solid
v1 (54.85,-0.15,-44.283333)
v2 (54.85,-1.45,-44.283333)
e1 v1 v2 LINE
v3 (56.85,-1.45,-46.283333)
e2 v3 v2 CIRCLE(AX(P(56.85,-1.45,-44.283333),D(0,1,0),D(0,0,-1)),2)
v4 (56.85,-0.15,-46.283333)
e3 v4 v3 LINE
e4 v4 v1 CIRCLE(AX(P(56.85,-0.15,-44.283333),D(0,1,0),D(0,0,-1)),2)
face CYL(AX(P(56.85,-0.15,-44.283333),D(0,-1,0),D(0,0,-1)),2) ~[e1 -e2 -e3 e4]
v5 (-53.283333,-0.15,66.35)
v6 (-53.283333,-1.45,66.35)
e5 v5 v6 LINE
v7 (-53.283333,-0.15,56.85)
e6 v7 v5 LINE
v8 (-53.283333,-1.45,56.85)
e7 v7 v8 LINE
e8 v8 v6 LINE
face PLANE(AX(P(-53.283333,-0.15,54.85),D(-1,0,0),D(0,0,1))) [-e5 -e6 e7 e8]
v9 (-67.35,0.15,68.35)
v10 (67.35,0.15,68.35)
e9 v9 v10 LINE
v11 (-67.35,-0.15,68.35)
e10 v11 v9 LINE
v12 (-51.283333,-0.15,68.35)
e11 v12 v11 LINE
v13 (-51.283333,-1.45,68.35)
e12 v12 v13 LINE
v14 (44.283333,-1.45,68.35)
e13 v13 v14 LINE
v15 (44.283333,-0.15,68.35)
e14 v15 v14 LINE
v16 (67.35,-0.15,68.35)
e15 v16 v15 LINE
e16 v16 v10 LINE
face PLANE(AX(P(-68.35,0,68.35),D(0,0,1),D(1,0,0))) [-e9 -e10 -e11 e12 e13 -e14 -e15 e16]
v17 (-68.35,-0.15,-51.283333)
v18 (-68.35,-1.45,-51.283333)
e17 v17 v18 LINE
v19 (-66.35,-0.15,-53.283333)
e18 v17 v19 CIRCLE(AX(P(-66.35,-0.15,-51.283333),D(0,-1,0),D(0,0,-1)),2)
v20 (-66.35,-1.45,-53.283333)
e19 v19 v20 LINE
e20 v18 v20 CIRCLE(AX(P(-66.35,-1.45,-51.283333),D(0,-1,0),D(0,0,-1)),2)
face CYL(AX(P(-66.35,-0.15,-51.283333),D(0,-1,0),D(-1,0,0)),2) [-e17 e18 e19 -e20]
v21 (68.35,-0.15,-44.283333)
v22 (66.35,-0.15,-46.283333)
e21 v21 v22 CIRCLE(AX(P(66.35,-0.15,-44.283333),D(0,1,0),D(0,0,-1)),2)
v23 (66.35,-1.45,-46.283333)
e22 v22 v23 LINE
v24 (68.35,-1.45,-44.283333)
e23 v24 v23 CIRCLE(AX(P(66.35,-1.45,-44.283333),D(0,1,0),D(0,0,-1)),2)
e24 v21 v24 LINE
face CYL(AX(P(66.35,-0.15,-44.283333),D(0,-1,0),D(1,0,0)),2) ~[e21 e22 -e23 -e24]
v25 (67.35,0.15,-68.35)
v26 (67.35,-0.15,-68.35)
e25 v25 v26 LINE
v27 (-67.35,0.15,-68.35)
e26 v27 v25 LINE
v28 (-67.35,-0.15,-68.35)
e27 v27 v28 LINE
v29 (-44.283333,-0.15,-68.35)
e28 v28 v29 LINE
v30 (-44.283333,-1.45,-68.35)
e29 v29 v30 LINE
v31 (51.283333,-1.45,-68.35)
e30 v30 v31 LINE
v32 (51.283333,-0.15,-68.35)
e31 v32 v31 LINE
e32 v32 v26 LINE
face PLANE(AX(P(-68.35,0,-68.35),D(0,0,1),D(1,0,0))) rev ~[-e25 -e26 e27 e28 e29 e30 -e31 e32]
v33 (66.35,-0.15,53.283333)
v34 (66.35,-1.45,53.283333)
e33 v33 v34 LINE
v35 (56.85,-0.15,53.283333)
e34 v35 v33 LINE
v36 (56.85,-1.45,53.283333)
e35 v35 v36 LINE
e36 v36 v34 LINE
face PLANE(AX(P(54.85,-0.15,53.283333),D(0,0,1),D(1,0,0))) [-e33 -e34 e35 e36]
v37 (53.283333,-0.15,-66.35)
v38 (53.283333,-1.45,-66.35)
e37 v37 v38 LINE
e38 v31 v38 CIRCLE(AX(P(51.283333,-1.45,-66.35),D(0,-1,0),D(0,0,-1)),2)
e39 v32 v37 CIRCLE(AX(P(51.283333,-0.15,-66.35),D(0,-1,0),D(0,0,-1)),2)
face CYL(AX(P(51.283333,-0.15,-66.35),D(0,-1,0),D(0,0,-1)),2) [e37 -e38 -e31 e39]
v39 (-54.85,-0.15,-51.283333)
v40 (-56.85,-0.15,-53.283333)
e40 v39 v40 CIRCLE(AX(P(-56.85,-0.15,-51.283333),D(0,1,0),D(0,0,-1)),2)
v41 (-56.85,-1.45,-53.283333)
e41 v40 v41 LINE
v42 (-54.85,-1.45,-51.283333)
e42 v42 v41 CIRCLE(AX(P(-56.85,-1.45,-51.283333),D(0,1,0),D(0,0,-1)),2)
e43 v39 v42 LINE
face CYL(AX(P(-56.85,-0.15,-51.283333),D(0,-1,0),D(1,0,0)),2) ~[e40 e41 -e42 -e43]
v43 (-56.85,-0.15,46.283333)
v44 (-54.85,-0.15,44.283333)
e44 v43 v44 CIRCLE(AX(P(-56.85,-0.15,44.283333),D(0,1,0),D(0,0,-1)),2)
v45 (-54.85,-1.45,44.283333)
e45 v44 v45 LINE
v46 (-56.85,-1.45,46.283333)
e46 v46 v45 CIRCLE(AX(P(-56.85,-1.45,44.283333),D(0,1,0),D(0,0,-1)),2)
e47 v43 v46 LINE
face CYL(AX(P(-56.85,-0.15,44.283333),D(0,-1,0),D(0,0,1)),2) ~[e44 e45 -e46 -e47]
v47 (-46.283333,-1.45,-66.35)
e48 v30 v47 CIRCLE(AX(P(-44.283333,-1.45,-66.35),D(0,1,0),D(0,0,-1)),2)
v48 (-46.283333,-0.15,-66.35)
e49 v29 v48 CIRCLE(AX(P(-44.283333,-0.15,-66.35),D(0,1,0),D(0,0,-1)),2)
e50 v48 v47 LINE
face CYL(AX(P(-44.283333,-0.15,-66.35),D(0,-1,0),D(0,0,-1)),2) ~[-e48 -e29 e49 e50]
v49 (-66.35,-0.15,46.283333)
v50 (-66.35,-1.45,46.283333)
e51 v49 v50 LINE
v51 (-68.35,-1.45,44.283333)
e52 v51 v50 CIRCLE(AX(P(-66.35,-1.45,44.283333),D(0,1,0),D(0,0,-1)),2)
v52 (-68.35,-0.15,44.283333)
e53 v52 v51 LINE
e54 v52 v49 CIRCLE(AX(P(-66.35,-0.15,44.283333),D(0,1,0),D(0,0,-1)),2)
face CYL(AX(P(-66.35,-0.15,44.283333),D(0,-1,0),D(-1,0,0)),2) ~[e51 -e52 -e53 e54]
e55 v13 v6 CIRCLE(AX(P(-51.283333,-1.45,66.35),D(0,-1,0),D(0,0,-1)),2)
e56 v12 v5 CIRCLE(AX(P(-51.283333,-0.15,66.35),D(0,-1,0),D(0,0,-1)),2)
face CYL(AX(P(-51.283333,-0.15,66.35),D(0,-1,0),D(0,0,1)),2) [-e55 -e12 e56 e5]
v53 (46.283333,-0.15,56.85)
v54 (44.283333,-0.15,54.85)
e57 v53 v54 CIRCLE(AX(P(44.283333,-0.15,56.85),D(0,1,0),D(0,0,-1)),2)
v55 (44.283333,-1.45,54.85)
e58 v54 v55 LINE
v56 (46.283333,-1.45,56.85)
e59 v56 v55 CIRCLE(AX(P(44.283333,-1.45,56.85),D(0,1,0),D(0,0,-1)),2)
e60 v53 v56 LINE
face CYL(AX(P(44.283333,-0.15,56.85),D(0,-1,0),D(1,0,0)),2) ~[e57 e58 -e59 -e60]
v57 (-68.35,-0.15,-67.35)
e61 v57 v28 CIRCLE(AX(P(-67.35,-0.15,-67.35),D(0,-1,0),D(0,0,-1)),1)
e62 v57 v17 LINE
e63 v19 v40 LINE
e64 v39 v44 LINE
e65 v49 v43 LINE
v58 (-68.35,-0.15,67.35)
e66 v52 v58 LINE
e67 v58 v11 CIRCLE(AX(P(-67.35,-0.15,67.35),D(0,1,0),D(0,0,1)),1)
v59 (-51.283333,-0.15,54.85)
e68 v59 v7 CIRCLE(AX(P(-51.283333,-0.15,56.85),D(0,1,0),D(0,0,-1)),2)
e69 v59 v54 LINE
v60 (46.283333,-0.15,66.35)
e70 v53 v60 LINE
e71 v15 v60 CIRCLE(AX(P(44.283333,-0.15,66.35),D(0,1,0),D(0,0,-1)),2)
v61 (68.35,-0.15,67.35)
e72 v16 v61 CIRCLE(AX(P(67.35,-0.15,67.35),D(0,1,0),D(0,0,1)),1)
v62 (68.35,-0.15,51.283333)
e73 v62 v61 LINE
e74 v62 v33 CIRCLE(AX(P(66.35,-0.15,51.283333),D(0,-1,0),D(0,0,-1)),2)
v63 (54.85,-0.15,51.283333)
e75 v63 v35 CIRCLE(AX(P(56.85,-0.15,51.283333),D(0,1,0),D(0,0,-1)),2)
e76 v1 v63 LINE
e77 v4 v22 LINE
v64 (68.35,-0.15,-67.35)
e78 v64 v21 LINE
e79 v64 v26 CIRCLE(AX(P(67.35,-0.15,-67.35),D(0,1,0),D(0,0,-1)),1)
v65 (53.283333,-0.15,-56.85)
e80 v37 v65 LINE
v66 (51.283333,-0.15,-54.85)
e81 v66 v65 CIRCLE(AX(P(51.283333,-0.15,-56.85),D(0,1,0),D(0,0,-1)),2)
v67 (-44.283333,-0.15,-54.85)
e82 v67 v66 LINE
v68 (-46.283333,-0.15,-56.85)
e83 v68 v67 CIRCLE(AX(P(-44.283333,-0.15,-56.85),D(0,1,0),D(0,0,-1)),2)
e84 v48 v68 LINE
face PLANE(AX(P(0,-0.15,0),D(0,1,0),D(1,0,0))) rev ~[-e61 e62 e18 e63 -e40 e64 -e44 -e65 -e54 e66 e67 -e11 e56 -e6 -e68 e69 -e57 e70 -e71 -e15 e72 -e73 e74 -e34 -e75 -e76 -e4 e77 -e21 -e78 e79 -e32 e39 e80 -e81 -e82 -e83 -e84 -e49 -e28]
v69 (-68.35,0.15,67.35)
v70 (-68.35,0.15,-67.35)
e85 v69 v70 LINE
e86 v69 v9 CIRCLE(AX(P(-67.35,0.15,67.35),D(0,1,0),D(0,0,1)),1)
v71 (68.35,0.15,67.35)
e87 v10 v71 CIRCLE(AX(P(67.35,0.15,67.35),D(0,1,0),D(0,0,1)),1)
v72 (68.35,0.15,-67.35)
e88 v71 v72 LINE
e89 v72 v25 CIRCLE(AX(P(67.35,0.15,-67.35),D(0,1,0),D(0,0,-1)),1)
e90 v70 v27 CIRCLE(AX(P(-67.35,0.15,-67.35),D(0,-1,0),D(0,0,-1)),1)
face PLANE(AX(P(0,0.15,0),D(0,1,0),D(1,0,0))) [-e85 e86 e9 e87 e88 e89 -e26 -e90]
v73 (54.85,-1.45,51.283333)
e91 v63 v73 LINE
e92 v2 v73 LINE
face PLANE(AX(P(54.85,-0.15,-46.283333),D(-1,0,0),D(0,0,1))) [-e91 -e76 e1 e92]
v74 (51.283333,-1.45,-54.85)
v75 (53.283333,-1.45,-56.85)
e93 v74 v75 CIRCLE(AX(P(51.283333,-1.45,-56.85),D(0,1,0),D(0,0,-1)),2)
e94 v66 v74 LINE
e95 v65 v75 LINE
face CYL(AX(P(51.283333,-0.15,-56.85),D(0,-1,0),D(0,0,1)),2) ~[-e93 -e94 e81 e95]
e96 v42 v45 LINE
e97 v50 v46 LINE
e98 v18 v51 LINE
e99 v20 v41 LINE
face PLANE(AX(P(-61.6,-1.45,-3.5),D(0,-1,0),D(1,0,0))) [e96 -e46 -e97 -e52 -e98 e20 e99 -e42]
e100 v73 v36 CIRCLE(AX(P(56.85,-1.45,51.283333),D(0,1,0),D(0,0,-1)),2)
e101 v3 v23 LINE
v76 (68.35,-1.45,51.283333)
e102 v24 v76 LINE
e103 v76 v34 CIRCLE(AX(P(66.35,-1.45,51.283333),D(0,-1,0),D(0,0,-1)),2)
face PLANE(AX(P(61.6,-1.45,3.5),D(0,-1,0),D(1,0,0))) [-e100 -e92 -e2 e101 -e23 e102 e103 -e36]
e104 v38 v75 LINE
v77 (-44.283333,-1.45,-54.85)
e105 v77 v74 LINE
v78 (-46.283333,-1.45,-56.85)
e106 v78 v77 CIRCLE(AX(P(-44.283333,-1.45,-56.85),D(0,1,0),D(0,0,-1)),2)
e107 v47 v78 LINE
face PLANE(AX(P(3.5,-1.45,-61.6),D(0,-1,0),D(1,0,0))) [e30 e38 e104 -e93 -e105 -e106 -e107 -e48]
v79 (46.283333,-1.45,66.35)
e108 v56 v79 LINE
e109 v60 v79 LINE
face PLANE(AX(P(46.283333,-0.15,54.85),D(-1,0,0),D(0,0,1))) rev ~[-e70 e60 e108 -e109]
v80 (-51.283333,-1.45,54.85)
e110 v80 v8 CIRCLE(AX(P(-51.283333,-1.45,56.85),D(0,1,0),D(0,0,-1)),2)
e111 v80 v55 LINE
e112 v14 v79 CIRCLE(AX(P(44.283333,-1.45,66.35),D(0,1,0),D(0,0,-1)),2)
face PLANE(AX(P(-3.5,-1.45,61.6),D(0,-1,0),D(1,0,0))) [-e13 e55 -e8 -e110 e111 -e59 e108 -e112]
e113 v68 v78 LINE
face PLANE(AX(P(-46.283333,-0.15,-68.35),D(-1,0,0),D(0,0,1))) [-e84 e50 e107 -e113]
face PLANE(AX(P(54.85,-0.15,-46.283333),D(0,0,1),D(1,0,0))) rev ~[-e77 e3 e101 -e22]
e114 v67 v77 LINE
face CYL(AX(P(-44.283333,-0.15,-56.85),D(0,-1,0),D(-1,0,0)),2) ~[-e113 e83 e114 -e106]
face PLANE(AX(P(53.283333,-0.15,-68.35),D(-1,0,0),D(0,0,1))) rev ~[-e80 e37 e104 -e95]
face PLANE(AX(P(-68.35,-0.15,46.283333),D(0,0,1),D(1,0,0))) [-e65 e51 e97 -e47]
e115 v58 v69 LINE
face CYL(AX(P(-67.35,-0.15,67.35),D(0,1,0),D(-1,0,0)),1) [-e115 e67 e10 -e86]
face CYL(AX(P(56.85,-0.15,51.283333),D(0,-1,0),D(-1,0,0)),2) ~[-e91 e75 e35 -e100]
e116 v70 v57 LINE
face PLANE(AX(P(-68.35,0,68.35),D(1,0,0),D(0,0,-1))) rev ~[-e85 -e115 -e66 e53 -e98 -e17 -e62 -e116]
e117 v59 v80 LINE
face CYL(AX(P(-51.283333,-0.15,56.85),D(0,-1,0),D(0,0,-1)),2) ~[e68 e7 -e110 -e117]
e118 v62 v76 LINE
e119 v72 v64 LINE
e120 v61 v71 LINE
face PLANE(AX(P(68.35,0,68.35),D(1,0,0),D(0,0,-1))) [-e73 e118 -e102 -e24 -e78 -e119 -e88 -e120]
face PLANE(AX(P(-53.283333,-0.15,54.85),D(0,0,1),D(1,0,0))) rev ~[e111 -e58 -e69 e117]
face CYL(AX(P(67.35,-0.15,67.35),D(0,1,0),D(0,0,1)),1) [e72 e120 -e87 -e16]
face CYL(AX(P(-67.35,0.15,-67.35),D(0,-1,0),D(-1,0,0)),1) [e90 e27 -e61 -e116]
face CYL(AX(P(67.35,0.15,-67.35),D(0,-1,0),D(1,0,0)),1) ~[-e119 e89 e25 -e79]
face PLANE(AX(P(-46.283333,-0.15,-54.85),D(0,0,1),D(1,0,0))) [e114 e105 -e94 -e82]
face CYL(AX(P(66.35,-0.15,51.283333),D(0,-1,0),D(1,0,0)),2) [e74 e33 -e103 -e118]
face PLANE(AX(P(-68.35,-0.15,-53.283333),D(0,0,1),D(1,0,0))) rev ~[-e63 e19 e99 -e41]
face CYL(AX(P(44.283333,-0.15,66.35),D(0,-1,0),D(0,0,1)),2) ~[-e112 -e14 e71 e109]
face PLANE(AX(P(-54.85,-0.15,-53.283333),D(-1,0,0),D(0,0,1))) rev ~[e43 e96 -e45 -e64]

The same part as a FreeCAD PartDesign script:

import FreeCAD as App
import Part
import Sketcher
Q = App.Units.Quantity


def edges_at(feature, points):
    """Names of the edges that pass closest to the given points."""
    edges = feature.Shape.Edges
    near = lambda p: min(range(len(edges)), key=lambda i: edges[i].distToShape(Part.Vertex(*p))[0])
    return sorted({f"Edge{near(p) + 1}" for p in points})

doc = App.newDocument("Part")
body = doc.addObject("PartDesign::Body", "Body")

# Sketch on XZ plane
sketch1 = doc.addObject("Sketcher::SketchObject", "Sketch")
body.addObject(sketch1)
sketch1.AttachmentSupport = (doc.XZ_Plane, [""])
sketch1.MapMode = "FlatFace"
sketch1.addGeometry(Part.LineSegment(App.Vector(-68.35, -68.35, 0), App.Vector(-68.35, 68.35, 0)), False)
sketch1.addGeometry(Part.LineSegment(App.Vector(-68.35, 68.35, 0), App.Vector(68.35, 68.35, 0)), False)
sketch1.addGeometry(Part.LineSegment(App.Vector(68.35, 68.35, 0), App.Vector(68.35, -68.35, 0)), False)
sketch1.addGeometry(Part.LineSegment(App.Vector(68.35, -68.35, 0), App.Vector(-68.35, -68.35, 0)), False)
sketch1.addConstraint(Sketcher.Constraint("Coincident", 0, 2, 1, 1))
sketch1.addConstraint(Sketcher.Constraint("Coincident", 1, 2, 2, 1))
sketch1.addConstraint(Sketcher.Constraint("Coincident", 2, 2, 3, 1))
sketch1.addConstraint(Sketcher.Constraint("Coincident", 3, 2, 0, 1))
sketch1.addConstraint(Sketcher.Constraint("Vertical", 0))
sketch1.addConstraint(Sketcher.Constraint("Horizontal", 1))
sketch1.addConstraint(Sketcher.Constraint("Vertical", 2))
sketch1.addConstraint(Sketcher.Constraint("Horizontal", 3))
sketch1.addConstraint(Sketcher.Constraint("Symmetric", 0, 2, 2, 2, -1, 1))
sketch1.addConstraint(Sketcher.Constraint("Equal", 3, 0))
sketch1.addConstraint(Sketcher.Constraint("DistanceX", 1, 1, 1, 2, Q("136.7 mm")))
pad1 = doc.addObject("PartDesign::Pad", "Pad")
body.addObject(pad1)
pad1.Profile = sketch1
pad1.Length = 0.3
pad1.Midplane = True

# Sketch on XZ plane
sketch2 = doc.addObject("Sketcher::SketchObject", "Sketch001")
body.addObject(sketch2)
sketch2.AttachmentSupport = (doc.XZ_Plane, [""])
sketch2.MapMode = "FlatFace"
sketch2.AttachmentOffset = App.Placement(App.Vector(0, 0, 0.15), App.Rotation())
sketch2.addGeometry(Part.LineSegment(App.Vector(-68.35, 46.283333, 0), App.Vector(-68.35, -53.283333, 0)), False)
sketch2.addGeometry(Part.LineSegment(App.Vector(-68.35, -53.283333, 0), App.Vector(-54.85, -53.283333, 0)), False)
sketch2.addGeometry(Part.LineSegment(App.Vector(-54.85, -53.283333, 0), App.Vector(-54.85, 46.283333, 0)), False)
sketch2.addGeometry(Part.LineSegment(App.Vector(-54.85, 46.283333, 0), App.Vector(-68.35, 46.283333, 0)), False)
sketch2.addGeometry(Part.LineSegment(App.Vector(-46.283333, -54.85, 0), App.Vector(-46.283333, -68.35, 0)), False)
sketch2.addGeometry(Part.LineSegment(App.Vector(-46.283333, -68.35, 0), App.Vector(53.283333, -68.35, 0)), False)
sketch2.addGeometry(Part.LineSegment(App.Vector(53.283333, -68.35, 0), App.Vector(53.283333, -54.85, 0)), False)
sketch2.addGeometry(Part.LineSegment(App.Vector(53.283333, -54.85, 0), App.Vector(-46.283333, -54.85, 0)), False)
sketch2.addGeometry(Part.LineSegment(App.Vector(-53.283333, 68.35, 0), App.Vector(-53.283333, 54.85, 0)), False)
sketch2.addGeometry(Part.LineSegment(App.Vector(-53.283333, 54.85, 0), App.Vector(46.283333, 54.85, 0)), False)
sketch2.addGeometry(Part.LineSegment(App.Vector(46.283333, 54.85, 0), App.Vector(46.283333, 68.35, 0)), False)
sketch2.addGeometry(Part.LineSegment(App.Vector(46.283333, 68.35, 0), App.Vector(-53.283333, 68.35, 0)), False)
sketch2.addGeometry(Part.LineSegment(App.Vector(54.85, 53.283333, 0), App.Vector(54.85, -46.283333, 0)), False)
sketch2.addGeometry(Part.LineSegment(App.Vector(54.85, -46.283333, 0), App.Vector(68.35, -46.283333, 0)), False)
sketch2.addGeometry(Part.LineSegment(App.Vector(68.35, -46.283333, 0), App.Vector(68.35, 53.283333, 0)), False)
sketch2.addGeometry(Part.LineSegment(App.Vector(68.35, 53.283333, 0), App.Vector(54.85, 53.283333, 0)), False)
sketch2.addConstraint(Sketcher.Constraint("Coincident", 0, 2, 1, 1))
sketch2.addConstraint(Sketcher.Constraint("Coincident", 1, 2, 2, 1))
sketch2.addConstraint(Sketcher.Constraint("Coincident", 2, 2, 3, 1))
sketch2.addConstraint(Sketcher.Constraint("Coincident", 3, 2, 0, 1))
sketch2.addConstraint(Sketcher.Constraint("Coincident", 4, 2, 5, 1))
sketch2.addConstraint(Sketcher.Constraint("Coincident", 5, 2, 6, 1))
sketch2.addConstraint(Sketcher.Constraint("Coincident", 6, 2, 7, 1))
sketch2.addConstraint(Sketcher.Constraint("Coincident", 7, 2, 4, 1))
sketch2.addConstraint(Sketcher.Constraint("Coincident", 8, 2, 9, 1))
sketch2.addConstraint(Sketcher.Constraint("Coincident", 9, 2, 10, 1))
sketch2.addConstraint(Sketcher.Constraint("Coincident", 10, 2, 11, 1))
sketch2.addConstraint(Sketcher.Constraint("Coincident", 11, 2, 8, 1))
sketch2.addConstraint(Sketcher.Constraint("Coincident", 12, 2, 13, 1))
sketch2.addConstraint(Sketcher.Constraint("Coincident", 13, 2, 14, 1))
sketch2.addConstraint(Sketcher.Constraint("Coincident", 14, 2, 15, 1))
sketch2.addConstraint(Sketcher.Constraint("Coincident", 15, 2, 12, 1))
sketch2.addConstraint(Sketcher.Constraint("Vertical", 0))
sketch2.addConstraint(Sketcher.Constraint("Horizontal", 1))
sketch2.addConstraint(Sketcher.Constraint("Vertical", 2))
sketch2.addConstraint(Sketcher.Constraint("Horizontal", 3))
sketch2.addConstraint(Sketcher.Constraint("Vertical", 4))
sketch2.addConstraint(Sketcher.Constraint("Horizontal", 5))
sketch2.addConstraint(Sketcher.Constraint("Vertical", 6))
sketch2.addConstraint(Sketcher.Constraint("Horizontal", 7))
sketch2.addConstraint(Sketcher.Constraint("Vertical", 8))
sketch2.addConstraint(Sketcher.Constraint("Horizontal", 9))
sketch2.addConstraint(Sketcher.Constraint("Vertical", 10))
sketch2.addConstraint(Sketcher.Constraint("Horizontal", 11))
sketch2.addConstraint(Sketcher.Constraint("Vertical", 12))
sketch2.addConstraint(Sketcher.Constraint("Horizontal", 13))
sketch2.addConstraint(Sketcher.Constraint("Vertical", 14))
sketch2.addConstraint(Sketcher.Constraint("Horizontal", 15))
sketch2.addConstraint(Sketcher.Constraint("Symmetric", 6, 2, 8, 2, -1, 1))
sketch2.addConstraint(Sketcher.Constraint("Symmetric", 4, 2, 10, 2, -1, 1))
sketch2.addConstraint(Sketcher.Constraint("Symmetric", 2, 2, 12, 2, -1, 1))
sketch2.addConstraint(Sketcher.Constraint("Symmetric", 0, 2, 14, 2, -1, 1))
sketch2.addConstraint(Sketcher.Constraint("Equal", 11, 0))
sketch2.addConstraint(Sketcher.Constraint("Equal", 15, 4))
sketch2.addConstraint(Sketcher.Constraint("DistanceX", 1, 1, 1, 2, Q("13.5 mm")))
sketch2.addConstraint(Sketcher.Constraint("DistanceX", 8, 2, 7, 2, Q("7 mm")))
sketch2.addConstraint(Sketcher.Constraint("DistanceY", 7, 2, 8, 2, Q("109.7 mm")))
sketch2.addConstraint(Sketcher.Constraint("DistanceX", 0, 2, -1, 1, Q("68.35 mm")))
sketch2.addConstraint(Sketcher.Constraint("DistanceX", 5, 1, 5, 2, Q("99.566667 mm")))
sketch2.addConstraint(Sketcher.Constraint("DistanceY", 0, 2, -1, 1, Q("53.283333 mm")))
pad2 = doc.addObject("PartDesign::Pad", "Pad001")
body.addObject(pad2)
pad2.Profile = sketch2
pad2.Length = 1.3
doc.recompute()

fillet = doc.addObject("PartDesign::Fillet", "Fillet")
body.addObject(fillet)
fillet.Base = (pad2, edges_at(pad2, [
    (53.283, -0.8, -68.35),
    (53.283, -0.8, -54.85),
    (-46.283, -0.8, -54.85),
    (-46.283, -0.8, -68.35),
    (-54.85, -0.8, -53.283),
    (-54.85, -0.8, 46.283),
    (-68.35, -0.8, 46.283),
    (-68.35, -0.8, -53.283),
    (-53.283, -0.8, 54.85),
    (46.283, -0.8, 54.85),
    (46.283, -0.8, 68.35),
    (-53.283, -0.8, 68.35),
    (54.85, -0.8, 53.283),
    (54.85, -0.8, -46.283),
    (68.35, -0.8, -46.283),
    (68.35, -0.8, 53.283),
]))
fillet.Radius = 2
doc.recompute()

fillet2 = doc.addObject("PartDesign::Fillet", "Fillet001")
body.addObject(fillet2)
fillet2.Base = (fillet, edges_at(fillet, [
    (68.35, 0, 68.35),
    (-68.35, 0, 68.35),
    (-68.35, 0, -68.35),
    (68.35, 0, -68.35),
]))
fillet2.Radius = 1

doc.recompute()
